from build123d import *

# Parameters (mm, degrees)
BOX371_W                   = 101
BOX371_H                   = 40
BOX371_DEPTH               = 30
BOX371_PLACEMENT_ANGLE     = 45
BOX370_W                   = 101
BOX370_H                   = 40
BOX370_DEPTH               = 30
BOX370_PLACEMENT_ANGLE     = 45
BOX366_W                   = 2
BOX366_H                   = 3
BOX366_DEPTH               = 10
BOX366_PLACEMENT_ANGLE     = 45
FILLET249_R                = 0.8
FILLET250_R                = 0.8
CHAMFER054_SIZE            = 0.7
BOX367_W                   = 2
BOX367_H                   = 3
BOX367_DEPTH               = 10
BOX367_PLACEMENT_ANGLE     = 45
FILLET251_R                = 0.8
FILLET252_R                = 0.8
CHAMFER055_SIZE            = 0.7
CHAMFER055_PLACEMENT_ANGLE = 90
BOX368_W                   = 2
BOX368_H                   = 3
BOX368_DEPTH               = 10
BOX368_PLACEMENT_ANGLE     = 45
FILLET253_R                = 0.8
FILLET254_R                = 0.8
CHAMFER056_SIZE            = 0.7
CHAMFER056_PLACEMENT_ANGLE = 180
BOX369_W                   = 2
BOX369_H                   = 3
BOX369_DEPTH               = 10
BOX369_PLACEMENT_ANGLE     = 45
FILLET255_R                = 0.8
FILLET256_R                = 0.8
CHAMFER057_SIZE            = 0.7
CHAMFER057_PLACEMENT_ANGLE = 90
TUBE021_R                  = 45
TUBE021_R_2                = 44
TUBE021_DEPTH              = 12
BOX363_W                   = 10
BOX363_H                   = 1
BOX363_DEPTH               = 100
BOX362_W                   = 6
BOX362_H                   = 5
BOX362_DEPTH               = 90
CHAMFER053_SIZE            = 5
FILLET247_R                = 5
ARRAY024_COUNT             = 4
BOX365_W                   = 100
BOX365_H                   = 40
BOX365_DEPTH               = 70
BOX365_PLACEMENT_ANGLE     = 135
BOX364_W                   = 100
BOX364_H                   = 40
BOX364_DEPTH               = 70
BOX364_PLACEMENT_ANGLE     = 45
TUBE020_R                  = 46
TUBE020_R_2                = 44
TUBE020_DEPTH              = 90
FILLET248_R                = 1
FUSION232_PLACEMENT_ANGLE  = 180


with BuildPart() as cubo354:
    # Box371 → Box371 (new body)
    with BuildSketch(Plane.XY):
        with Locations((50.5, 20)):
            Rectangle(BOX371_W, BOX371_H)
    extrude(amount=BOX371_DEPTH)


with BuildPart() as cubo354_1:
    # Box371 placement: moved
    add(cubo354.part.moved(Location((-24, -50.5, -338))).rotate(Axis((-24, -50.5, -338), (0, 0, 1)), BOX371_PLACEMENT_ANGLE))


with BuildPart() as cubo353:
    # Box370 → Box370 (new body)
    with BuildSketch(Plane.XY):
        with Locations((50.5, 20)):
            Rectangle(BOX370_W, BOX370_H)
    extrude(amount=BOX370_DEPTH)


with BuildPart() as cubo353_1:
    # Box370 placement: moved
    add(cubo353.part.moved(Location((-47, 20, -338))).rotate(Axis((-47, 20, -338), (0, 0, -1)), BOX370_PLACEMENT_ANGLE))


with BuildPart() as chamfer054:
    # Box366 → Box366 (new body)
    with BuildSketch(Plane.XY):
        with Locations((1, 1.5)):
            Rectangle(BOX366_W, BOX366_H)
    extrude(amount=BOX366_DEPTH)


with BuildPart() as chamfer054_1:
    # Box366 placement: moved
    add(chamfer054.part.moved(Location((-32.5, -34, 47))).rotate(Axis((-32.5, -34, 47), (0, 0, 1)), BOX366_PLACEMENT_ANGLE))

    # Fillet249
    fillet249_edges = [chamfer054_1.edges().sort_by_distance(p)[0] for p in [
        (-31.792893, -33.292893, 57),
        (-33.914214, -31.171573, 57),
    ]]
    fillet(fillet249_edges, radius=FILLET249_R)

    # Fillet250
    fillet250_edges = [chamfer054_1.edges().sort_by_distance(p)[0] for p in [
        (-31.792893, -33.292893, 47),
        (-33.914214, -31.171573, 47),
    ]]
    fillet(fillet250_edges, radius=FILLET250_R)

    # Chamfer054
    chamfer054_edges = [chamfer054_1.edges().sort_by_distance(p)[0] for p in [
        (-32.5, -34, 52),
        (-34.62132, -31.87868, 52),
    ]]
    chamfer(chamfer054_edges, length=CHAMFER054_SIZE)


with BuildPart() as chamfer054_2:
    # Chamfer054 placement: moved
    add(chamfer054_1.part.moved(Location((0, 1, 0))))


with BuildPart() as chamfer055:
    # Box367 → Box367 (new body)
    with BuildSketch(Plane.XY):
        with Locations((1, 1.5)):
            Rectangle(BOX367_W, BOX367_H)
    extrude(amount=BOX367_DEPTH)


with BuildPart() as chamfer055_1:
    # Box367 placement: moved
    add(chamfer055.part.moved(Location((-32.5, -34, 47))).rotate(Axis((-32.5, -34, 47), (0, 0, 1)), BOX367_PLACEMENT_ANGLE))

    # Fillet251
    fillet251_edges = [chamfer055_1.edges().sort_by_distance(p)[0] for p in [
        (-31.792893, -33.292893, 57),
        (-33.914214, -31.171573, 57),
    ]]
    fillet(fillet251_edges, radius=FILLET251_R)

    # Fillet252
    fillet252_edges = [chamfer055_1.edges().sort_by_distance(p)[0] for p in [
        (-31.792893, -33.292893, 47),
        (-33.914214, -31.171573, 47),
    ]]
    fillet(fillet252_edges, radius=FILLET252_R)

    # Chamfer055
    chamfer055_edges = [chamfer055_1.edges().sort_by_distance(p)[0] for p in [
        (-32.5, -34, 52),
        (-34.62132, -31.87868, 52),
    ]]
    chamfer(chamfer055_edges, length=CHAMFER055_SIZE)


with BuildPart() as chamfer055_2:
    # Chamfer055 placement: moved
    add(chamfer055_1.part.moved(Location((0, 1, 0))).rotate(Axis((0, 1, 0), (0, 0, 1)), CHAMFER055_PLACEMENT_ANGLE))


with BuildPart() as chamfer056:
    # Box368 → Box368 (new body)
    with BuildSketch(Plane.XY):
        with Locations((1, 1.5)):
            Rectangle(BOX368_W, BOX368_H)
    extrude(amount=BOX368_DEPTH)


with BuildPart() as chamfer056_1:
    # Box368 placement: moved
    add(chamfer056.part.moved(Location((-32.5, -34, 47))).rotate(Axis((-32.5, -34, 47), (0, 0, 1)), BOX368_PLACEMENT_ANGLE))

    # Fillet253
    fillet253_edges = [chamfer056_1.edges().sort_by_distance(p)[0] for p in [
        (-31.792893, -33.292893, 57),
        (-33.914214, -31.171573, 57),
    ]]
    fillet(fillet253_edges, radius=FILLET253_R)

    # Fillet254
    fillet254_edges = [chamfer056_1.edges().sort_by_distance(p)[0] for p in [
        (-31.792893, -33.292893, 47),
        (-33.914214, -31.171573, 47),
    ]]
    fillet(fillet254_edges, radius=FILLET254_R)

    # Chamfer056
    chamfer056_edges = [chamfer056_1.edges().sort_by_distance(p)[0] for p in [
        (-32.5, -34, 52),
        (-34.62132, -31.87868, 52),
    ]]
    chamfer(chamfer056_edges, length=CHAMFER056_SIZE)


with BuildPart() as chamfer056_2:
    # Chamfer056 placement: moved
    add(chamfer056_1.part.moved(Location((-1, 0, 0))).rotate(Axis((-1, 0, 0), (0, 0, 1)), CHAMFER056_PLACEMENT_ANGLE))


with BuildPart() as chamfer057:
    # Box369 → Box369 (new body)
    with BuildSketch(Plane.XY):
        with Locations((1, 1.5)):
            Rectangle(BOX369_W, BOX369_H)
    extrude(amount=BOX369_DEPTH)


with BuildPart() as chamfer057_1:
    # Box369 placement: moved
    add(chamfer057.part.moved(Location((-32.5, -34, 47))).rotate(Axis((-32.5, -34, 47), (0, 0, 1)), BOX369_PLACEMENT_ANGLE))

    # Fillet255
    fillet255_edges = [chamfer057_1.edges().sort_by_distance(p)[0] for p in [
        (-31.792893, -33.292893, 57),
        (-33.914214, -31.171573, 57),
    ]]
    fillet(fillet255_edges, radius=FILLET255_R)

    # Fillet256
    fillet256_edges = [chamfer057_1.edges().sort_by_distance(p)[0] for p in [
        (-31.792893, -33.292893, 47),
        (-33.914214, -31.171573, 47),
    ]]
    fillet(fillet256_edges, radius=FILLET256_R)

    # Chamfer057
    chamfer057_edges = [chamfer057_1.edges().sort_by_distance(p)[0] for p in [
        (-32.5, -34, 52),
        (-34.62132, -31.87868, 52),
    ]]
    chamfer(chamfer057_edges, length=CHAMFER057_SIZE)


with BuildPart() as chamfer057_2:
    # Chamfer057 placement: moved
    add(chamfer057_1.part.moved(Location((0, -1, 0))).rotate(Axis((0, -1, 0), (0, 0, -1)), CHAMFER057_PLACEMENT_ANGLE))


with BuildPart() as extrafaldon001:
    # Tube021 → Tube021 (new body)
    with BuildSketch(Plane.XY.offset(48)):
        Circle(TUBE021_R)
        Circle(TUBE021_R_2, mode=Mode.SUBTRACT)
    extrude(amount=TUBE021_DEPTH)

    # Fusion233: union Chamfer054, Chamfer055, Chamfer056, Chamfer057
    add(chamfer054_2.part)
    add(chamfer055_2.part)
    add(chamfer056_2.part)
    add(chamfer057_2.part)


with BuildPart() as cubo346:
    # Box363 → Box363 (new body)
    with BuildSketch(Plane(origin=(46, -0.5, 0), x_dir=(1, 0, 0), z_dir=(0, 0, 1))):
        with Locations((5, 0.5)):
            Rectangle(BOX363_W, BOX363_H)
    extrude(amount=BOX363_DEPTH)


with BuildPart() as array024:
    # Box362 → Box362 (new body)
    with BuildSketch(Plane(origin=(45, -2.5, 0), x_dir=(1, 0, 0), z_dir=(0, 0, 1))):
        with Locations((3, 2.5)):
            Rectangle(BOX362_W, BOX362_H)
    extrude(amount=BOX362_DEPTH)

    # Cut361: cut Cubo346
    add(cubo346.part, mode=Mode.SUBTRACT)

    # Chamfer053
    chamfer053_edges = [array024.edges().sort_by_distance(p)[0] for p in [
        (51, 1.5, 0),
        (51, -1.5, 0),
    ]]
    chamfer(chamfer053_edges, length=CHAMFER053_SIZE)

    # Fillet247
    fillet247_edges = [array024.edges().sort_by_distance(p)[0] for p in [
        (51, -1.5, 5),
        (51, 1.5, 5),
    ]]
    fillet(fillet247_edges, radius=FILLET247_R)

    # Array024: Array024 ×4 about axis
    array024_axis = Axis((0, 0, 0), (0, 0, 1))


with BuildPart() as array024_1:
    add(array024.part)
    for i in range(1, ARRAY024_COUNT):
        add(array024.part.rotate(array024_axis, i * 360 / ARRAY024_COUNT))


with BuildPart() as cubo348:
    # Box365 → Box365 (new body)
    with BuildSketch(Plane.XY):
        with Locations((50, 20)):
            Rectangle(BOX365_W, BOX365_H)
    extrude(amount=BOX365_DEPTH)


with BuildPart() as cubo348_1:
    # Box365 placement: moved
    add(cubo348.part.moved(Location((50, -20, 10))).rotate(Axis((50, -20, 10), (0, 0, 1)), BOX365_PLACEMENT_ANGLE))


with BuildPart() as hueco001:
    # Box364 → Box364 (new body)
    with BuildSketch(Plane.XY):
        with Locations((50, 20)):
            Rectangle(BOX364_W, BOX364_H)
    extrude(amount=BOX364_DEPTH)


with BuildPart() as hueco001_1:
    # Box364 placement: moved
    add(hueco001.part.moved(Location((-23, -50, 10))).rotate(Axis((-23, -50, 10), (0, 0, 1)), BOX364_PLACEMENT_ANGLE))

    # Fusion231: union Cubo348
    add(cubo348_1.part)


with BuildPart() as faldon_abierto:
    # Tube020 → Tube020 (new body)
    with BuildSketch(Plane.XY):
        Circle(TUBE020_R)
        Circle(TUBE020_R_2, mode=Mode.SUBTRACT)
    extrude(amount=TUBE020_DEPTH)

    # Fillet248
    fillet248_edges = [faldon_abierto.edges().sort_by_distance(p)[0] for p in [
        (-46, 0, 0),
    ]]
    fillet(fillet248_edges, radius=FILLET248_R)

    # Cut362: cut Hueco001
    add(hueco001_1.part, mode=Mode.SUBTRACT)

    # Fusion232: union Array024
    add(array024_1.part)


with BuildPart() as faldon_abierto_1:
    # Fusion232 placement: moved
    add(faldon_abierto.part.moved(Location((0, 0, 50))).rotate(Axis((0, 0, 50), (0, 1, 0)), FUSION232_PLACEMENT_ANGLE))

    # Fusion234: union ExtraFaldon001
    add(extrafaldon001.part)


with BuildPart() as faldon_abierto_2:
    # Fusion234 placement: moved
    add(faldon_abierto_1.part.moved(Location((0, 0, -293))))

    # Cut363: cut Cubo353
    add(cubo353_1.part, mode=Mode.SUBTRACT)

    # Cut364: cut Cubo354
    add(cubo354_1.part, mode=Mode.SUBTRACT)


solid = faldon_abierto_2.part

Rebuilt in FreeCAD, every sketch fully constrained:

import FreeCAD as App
import Part
import Sketcher
from FreeCAD import Vector


def edges_at(feature, points):
    """Names of the edges that pass closest to the given points."""
    edges = feature.Shape.Edges
    near = lambda p: min(range(len(edges)), key=lambda i: edges[i].distToShape(Part.Vertex(*p))[0])
    return sorted({f"Edge{near(p) + 1}" for p in points})

doc = App.newDocument("Part")
body = doc.addObject("PartDesign::Body", "Body")

# Sketch on XY plane
sketch1 = body.newObject("Sketcher::SketchObject", "Sketch")
sketch1.AttachmentSupport = (doc.getObject("XY_Plane"), [""])
sketch1.MapMode = "FlatFace"
sketch1.addGeometry([
    Part.LineSegment(Vector(0, 40, 0), Vector(0, 0, 0)),
    Part.LineSegment(Vector(0, 0, 0), Vector(101, 0, 0)),
    Part.LineSegment(Vector(101, 0, 0), Vector(101, 40, 0)),
    Part.LineSegment(Vector(101, 40, 0), Vector(0, 40, 0)),
], False)
sketch1.addConstraint([
    Sketcher.Constraint("Coincident", 0, 2, 1, 1),
    Sketcher.Constraint("Coincident", 1, 2, 2, 1),
    Sketcher.Constraint("Coincident", 2, 2, 3, 1),
    Sketcher.Constraint("Coincident", 3, 2, 0, 1),
    Sketcher.Constraint("Vertical", 0),
    Sketcher.Constraint("Horizontal", 1),
    Sketcher.Constraint("Vertical", 2),
    Sketcher.Constraint("Horizontal", 3),
    Sketcher.Constraint("Coincident", 0, 2, -1, 1),
    Sketcher.Constraint("DistanceX", 1, 1, 1, 2, 101.0),
    Sketcher.Constraint("DistanceY", 0, 2, 0, 1, 40.0),
])
pad1 = body.newObject("PartDesign::Pad", "Pad")
pad1.Profile = sketch1
pad1.Length = 30
body2 = doc.addObject("PartDesign::Body", "Body001")
doc.recompute()

body.Placement = App.Placement(Vector(-24, -50.5, -338), App.Rotation(Vector(0, 0, 1), 45))
boolean = body2.newObject("PartDesign::Boolean", "Boolean")
boolean.Type = "Fuse"
boolean.addObjects([body])
body3 = doc.addObject("PartDesign::Body", "Body002")

# Sketch on XY plane
sketch2 = body3.newObject("Sketcher::SketchObject", "Sketch001")
sketch2.AttachmentSupport = (doc.getObject("XY_Plane002"), [""])
sketch2.MapMode = "FlatFace"
sketch2.addGeometry([
    Part.LineSegment(Vector(0, 40, 0), Vector(0, 0, 0)),
    Part.LineSegment(Vector(0, 0, 0), Vector(101, 0, 0)),
    Part.LineSegment(Vector(101, 0, 0), Vector(101, 40, 0)),
    Part.LineSegment(Vector(101, 40, 0), Vector(0, 40, 0)),
], False)
sketch2.addConstraint([
    Sketcher.Constraint("Coincident", 0, 2, 1, 1),
    Sketcher.Constraint("Coincident", 1, 2, 2, 1),
    Sketcher.Constraint("Coincident", 2, 2, 3, 1),
    Sketcher.Constraint("Coincident", 3, 2, 0, 1),
    Sketcher.Constraint("Vertical", 0),
    Sketcher.Constraint("Horizontal", 1),
    Sketcher.Constraint("Vertical", 2),
    Sketcher.Constraint("Horizontal", 3),
    Sketcher.Constraint("Coincident", 0, 2, -1, 1),
    Sketcher.Constraint("DistanceX", 1, 1, 1, 2, 101.0),
    Sketcher.Constraint("DistanceY", 0, 2, 0, 1, 40.0),
])
pad2 = body3.newObject("PartDesign::Pad", "Pad001")
pad2.Profile = sketch2
pad2.Length = 30
body4 = doc.addObject("PartDesign::Body", "Body003")
doc.recompute()

body3.Placement = App.Placement(Vector(-47, 20, -338), App.Rotation(Vector(0, 0, -1), 45))
boolean2 = body4.newObject("PartDesign::Boolean", "Boolean001")
boolean2.Type = "Fuse"
boolean2.addObjects([body3])
body5 = doc.addObject("PartDesign::Body", "Body004")

# Sketch on XY plane
sketch3 = body5.newObject("Sketcher::SketchObject", "Sketch002")
sketch3.AttachmentSupport = (doc.getObject("XY_Plane004"), [""])
sketch3.MapMode = "FlatFace"
sketch3.addGeometry([
    Part.LineSegment(Vector(0, 3, 0), Vector(0, 0, 0)),
    Part.LineSegment(Vector(0, 0, 0), Vector(2, 0, 0)),
    Part.LineSegment(Vector(2, 0, 0), Vector(2, 3, 0)),
    Part.LineSegment(Vector(2, 3, 0), Vector(0, 3, 0)),
], False)
sketch3.addConstraint([
    Sketcher.Constraint("Coincident", 0, 2, 1, 1),
    Sketcher.Constraint("Coincident", 1, 2, 2, 1),
    Sketcher.Constraint("Coincident", 2, 2, 3, 1),
    Sketcher.Constraint("Coincident", 3, 2, 0, 1),
    Sketcher.Constraint("Vertical", 0),
    Sketcher.Constraint("Horizontal", 1),
    Sketcher.Constraint("Vertical", 2),
    Sketcher.Constraint("Horizontal", 3),
    Sketcher.Constraint("Coincident", 0, 2, -1, 1),
    Sketcher.Constraint("DistanceX", 1, 1, 1, 2, 2.0),
    Sketcher.Constraint("DistanceY", 0, 2, 0, 1, 3.0),
])
pad3 = body5.newObject("PartDesign::Pad", "Pad002")
pad3.Profile = sketch3
pad3.Length = 10
body6 = doc.addObject("PartDesign::Body", "Body005")
doc.recompute()

body5.Placement = App.Placement(Vector(-32.5, -34, 47), App.Rotation(Vector(0, 0, 1), 45))
boolean3 = body6.newObject("PartDesign::Boolean", "Boolean002")
boolean3.Type = "Fuse"
boolean3.addObjects([body5])
doc.recompute()

fillet = body6.newObject("PartDesign::Fillet", "Fillet")
fillet.Base = (boolean3, edges_at(boolean3, [(-31.793, -33.293, 57), (-33.914, -31.172, 57)]))
fillet.Radius = 0.8
doc.recompute()

fillet2 = body6.newObject("PartDesign::Fillet", "Fillet001")
fillet2.Base = (fillet, edges_at(fillet, [(-31.793, -33.293, 47), (-33.914, -31.172, 47)]))
fillet2.Radius = 0.8
doc.recompute()

chamfer = body6.newObject("PartDesign::Chamfer", "Chamfer")
chamfer.Base = (fillet2, edges_at(fillet2, [(-32.5, -34, 52), (-34.621, -31.879, 52)]))
chamfer.Size = 0.7
body7 = doc.addObject("PartDesign::Body", "Body006")
doc.recompute()

body6.Placement = App.Placement(Vector(0, 1, 0), App.Rotation(Vector(0, 0, 1), 0))
boolean4 = body7.newObject("PartDesign::Boolean", "Boolean003")
boolean4.Type = "Fuse"
boolean4.addObjects([body6])
body8 = doc.addObject("PartDesign::Body", "Body007")

# Sketch on XY plane
sketch4 = body8.newObject("Sketcher::SketchObject", "Sketch003")
sketch4.AttachmentSupport = (doc.getObject("XY_Plane007"), [""])
sketch4.MapMode = "FlatFace"
sketch4.addGeometry([
    Part.LineSegment(Vector(0, 3, 0), Vector(0, 0, 0)),
    Part.LineSegment(Vector(0, 0, 0), Vector(2, 0, 0)),
    Part.LineSegment(Vector(2, 0, 0), Vector(2, 3, 0)),
    Part.LineSegment(Vector(2, 3, 0), Vector(0, 3, 0)),
], False)
sketch4.addConstraint([
    Sketcher.Constraint("Coincident", 0, 2, 1, 1),
    Sketcher.Constraint("Coincident", 1, 2, 2, 1),
    Sketcher.Constraint("Coincident", 2, 2, 3, 1),
    Sketcher.Constraint("Coincident", 3, 2, 0, 1),
    Sketcher.Constraint("Vertical", 0),
    Sketcher.Constraint("Horizontal", 1),
    Sketcher.Constraint("Vertical", 2),
    Sketcher.Constraint("Horizontal", 3),
    Sketcher.Constraint("Coincident", 0, 2, -1, 1),
    Sketcher.Constraint("DistanceX", 1, 1, 1, 2, 2.0),
    Sketcher.Constraint("DistanceY", 0, 2, 0, 1, 3.0),
])
pad4 = body8.newObject("PartDesign::Pad", "Pad003")
pad4.Profile = sketch4
pad4.Length = 10
body9 = doc.addObject("PartDesign::Body", "Body008")
doc.recompute()

body8.Placement = App.Placement(Vector(-32.5, -34, 47), App.Rotation(Vector(0, 0, 1), 45))
boolean5 = body9.newObject("PartDesign::Boolean", "Boolean004")
boolean5.Type = "Fuse"
boolean5.addObjects([body8])
doc.recompute()

fillet3 = body9.newObject("PartDesign::Fillet", "Fillet002")
fillet3.Base = (boolean5, edges_at(boolean5, [(-31.793, -33.293, 57), (-33.914, -31.172, 57)]))
fillet3.Radius = 0.8
doc.recompute()

fillet4 = body9.newObject("PartDesign::Fillet", "Fillet003")
fillet4.Base = (fillet3, edges_at(fillet3, [(-31.793, -33.293, 47), (-33.914, -31.172, 47)]))
fillet4.Radius = 0.8
doc.recompute()

chamfer2 = body9.newObject("PartDesign::Chamfer", "Chamfer001")
chamfer2.Base = (fillet4, edges_at(fillet4, [(-32.5, -34, 52), (-34.621, -31.879, 52)]))
chamfer2.Size = 0.7
body10 = doc.addObject("PartDesign::Body", "Body009")
doc.recompute()

body9.Placement = App.Placement(Vector(0, 1, 0), App.Rotation(Vector(0, 0, 1), 90))
boolean6 = body10.newObject("PartDesign::Boolean", "Boolean005")
boolean6.Type = "Fuse"
boolean6.addObjects([body9])
body11 = doc.addObject("PartDesign::Body", "Body010")

# Sketch on XY plane
sketch5 = body11.newObject("Sketcher::SketchObject", "Sketch004")
sketch5.AttachmentSupport = (doc.getObject("XY_Plane010"), [""])
sketch5.MapMode = "FlatFace"
sketch5.addGeometry([
    Part.LineSegment(Vector(0, 3, 0), Vector(0, 0, 0)),
    Part.LineSegment(Vector(0, 0, 0), Vector(2, 0, 0)),
    Part.LineSegment(Vector(2, 0, 0), Vector(2, 3, 0)),
    Part.LineSegment(Vector(2, 3, 0), Vector(0, 3, 0)),
], False)
sketch5.addConstraint([
    Sketcher.Constraint("Coincident", 0, 2, 1, 1),
    Sketcher.Constraint("Coincident", 1, 2, 2, 1),
    Sketcher.Constraint("Coincident", 2, 2, 3, 1),
    Sketcher.Constraint("Coincident", 3, 2, 0, 1),
    Sketcher.Constraint("Vertical", 0),
    Sketcher.Constraint("Horizontal", 1),
    Sketcher.Constraint("Vertical", 2),
    Sketcher.Constraint("Horizontal", 3),
    Sketcher.Constraint("Coincident", 0, 2, -1, 1),
    Sketcher.Constraint("DistanceX", 1, 1, 1, 2, 2.0),
    Sketcher.Constraint("DistanceY", 0, 2, 0, 1, 3.0),
])
pad5 = body11.newObject("PartDesign::Pad", "Pad004")
pad5.Profile = sketch5
pad5.Length = 10
body12 = doc.addObject("PartDesign::Body", "Body011")
doc.recompute()

body11.Placement = App.Placement(Vector(-32.5, -34, 47), App.Rotation(Vector(0, 0, 1), 45))
boolean7 = body12.newObject("PartDesign::Boolean", "Boolean006")
boolean7.Type = "Fuse"
boolean7.addObjects([body11])
doc.recompute()

fillet5 = body12.newObject("PartDesign::Fillet", "Fillet004")
fillet5.Base = (boolean7, edges_at(boolean7, [(-31.793, -33.293, 57), (-33.914, -31.172, 57)]))
fillet5.Radius = 0.8
doc.recompute()

fillet6 = body12.newObject("PartDesign::Fillet", "Fillet005")
fillet6.Base = (fillet5, edges_at(fillet5, [(-31.793, -33.293, 47), (-33.914, -31.172, 47)]))
fillet6.Radius = 0.8
doc.recompute()

chamfer3 = body12.newObject("PartDesign::Chamfer", "Chamfer002")
chamfer3.Base = (fillet6, edges_at(fillet6, [(-32.5, -34, 52), (-34.621, -31.879, 52)]))
chamfer3.Size = 0.7
body13 = doc.addObject("PartDesign::Body", "Body012")
doc.recompute()

body12.Placement = App.Placement(Vector(-1, 0, 0), App.Rotation(Vector(0, 0, 1), 180))
boolean8 = body13.newObject("PartDesign::Boolean", "Boolean007")
boolean8.Type = "Fuse"
boolean8.addObjects([body12])
body14 = doc.addObject("PartDesign::Body", "Body013")

# Sketch on XY plane
sketch6 = body14.newObject("Sketcher::SketchObject", "Sketch005")
sketch6.AttachmentSupport = (doc.getObject("XY_Plane013"), [""])
sketch6.MapMode = "FlatFace"
sketch6.addGeometry([
    Part.LineSegment(Vector(0, 3, 0), Vector(0, 0, 0)),
    Part.LineSegment(Vector(0, 0, 0), Vector(2, 0, 0)),
    Part.LineSegment(Vector(2, 0, 0), Vector(2, 3, 0)),
    Part.LineSegment(Vector(2, 3, 0), Vector(0, 3, 0)),
], False)
sketch6.addConstraint([
    Sketcher.Constraint("Coincident", 0, 2, 1, 1),
    Sketcher.Constraint("Coincident", 1, 2, 2, 1),
    Sketcher.Constraint("Coincident", 2, 2, 3, 1),
    Sketcher.Constraint("Coincident", 3, 2, 0, 1),
    Sketcher.Constraint("Vertical", 0),
    Sketcher.Constraint("Horizontal", 1),
    Sketcher.Constraint("Vertical", 2),
    Sketcher.Constraint("Horizontal", 3),
    Sketcher.Constraint("Coincident", 0, 2, -1, 1),
    Sketcher.Constraint("DistanceX", 1, 1, 1, 2, 2.0),
    Sketcher.Constraint("DistanceY", 0, 2, 0, 1, 3.0),
])
pad6 = body14.newObject("PartDesign::Pad", "Pad005")
pad6.Profile = sketch6
pad6.Length = 10
body15 = doc.addObject("PartDesign::Body", "Body014")
doc.recompute()

body14.Placement = App.Placement(Vector(-32.5, -34, 47), App.Rotation(Vector(0, 0, 1), 45))
boolean9 = body15.newObject("PartDesign::Boolean", "Boolean008")
boolean9.Type = "Fuse"
boolean9.addObjects([body14])
doc.recompute()

fillet7 = body15.newObject("PartDesign::Fillet", "Fillet006")
fillet7.Base = (boolean9, edges_at(boolean9, [(-31.793, -33.293, 57), (-33.914, -31.172, 57)]))
fillet7.Radius = 0.8
doc.recompute()

fillet8 = body15.newObject("PartDesign::Fillet", "Fillet007")
fillet8.Base = (fillet7, edges_at(fillet7, [(-31.793, -33.293, 47), (-33.914, -31.172, 47)]))
fillet8.Radius = 0.8
doc.recompute()

chamfer4 = body15.newObject("PartDesign::Chamfer", "Chamfer003")
chamfer4.Base = (fillet8, edges_at(fillet8, [(-32.5, -34, 52), (-34.621, -31.879, 52)]))
chamfer4.Size = 0.7
body16 = doc.addObject("PartDesign::Body", "Body015")
doc.recompute()

body15.Placement = App.Placement(Vector(0, -1, 0), App.Rotation(Vector(0, 0, -1), 90))
boolean10 = body16.newObject("PartDesign::Boolean", "Boolean009")
boolean10.Type = "Fuse"
boolean10.addObjects([body15])
body17 = doc.addObject("PartDesign::Body", "Body016")

# Sketch on XY plane
sketch7 = body17.newObject("Sketcher::SketchObject", "Sketch006")
sketch7.AttachmentSupport = (doc.getObject("XY_Plane016"), [""])
sketch7.MapMode = "FlatFace"
sketch7.AttachmentOffset = App.Placement(Vector(0, 0, 48), App.Rotation())
sketch7.addGeometry([
    Part.Circle(Vector(0, 0, 0), Vector(0, 0, 1), 45),
    Part.Circle(Vector(0, 0, 0), Vector(0, 0, 1), 44),
], False)
sketch7.addConstraint([
    Sketcher.Constraint("Coincident", 0, 3, -1, 1),
    Sketcher.Constraint("Coincident", 1, 3, -1, 1),
    Sketcher.Constraint("Diameter", 0, 90.0),
    Sketcher.Constraint("Diameter", 1, 88.0),
])
pad7 = body17.newObject("PartDesign::Pad", "Pad006")
pad7.Profile = sketch7
pad7.Length = 12
doc.recompute()

boolean11 = body17.newObject("PartDesign::Boolean", "Boolean010")
boolean11.Type = "Fuse"
boolean11.addObjects([body7])
doc.recompute()

boolean12 = body17.newObject("PartDesign::Boolean", "Boolean011")
boolean12.Type = "Fuse"
boolean12.addObjects([body10])
doc.recompute()

boolean13 = body17.newObject("PartDesign::Boolean", "Boolean012")
boolean13.Type = "Fuse"
boolean13.addObjects([body13])
doc.recompute()

boolean14 = body17.newObject("PartDesign::Boolean", "Boolean013")
boolean14.Type = "Fuse"
boolean14.addObjects([body16])
body18 = doc.addObject("PartDesign::Body", "Body017")

# Sketch on XY plane
sketch8 = body18.newObject("Sketcher::SketchObject", "Sketch007")
sketch8.AttachmentSupport = (doc.getObject("XY_Plane017"), [""])
sketch8.MapMode = "FlatFace"
sketch8.addGeometry([
    Part.LineSegment(Vector(46, 0.5, 0), Vector(46, -0.5, 0)),
    Part.LineSegment(Vector(46, -0.5, 0), Vector(56, -0.5, 0)),
    Part.LineSegment(Vector(56, -0.5, 0), Vector(56, 0.5, 0)),
    Part.LineSegment(Vector(56, 0.5, 0), Vector(46, 0.5, 0)),
], False)
sketch8.addConstraint([
    Sketcher.Constraint("Coincident", 0, 2, 1, 1),
    Sketcher.Constraint("Coincident", 1, 2, 2, 1),
    Sketcher.Constraint("Coincident", 2, 2, 3, 1),
    Sketcher.Constraint("Coincident", 3, 2, 0, 1),
    Sketcher.Constraint("Vertical", 0),
    Sketcher.Constraint("Horizontal", 1),
    Sketcher.Constraint("Vertical", 2),
    Sketcher.Constraint("Horizontal", 3),
    Sketcher.Constraint("DistanceX", 1, 1, 1, 2, 10.0),
    Sketcher.Constraint("DistanceY", 0, 2, 0, 1, 1.0),
    Sketcher.Constraint("DistanceX", -1, 1, 0, 2, 46.0),
    Sketcher.Constraint("DistanceY", 0, 2, -1, 1, 0.5),
])
pad8 = body18.newObject("PartDesign::Pad", "Pad007")
pad8.Profile = sketch8
pad8.Length = 100
body19 = doc.addObject("PartDesign::Body", "Body018")

# Sketch on XY plane
sketch9 = body19.newObject("Sketcher::SketchObject", "Sketch008")
sketch9.AttachmentSupport = (doc.getObject("XY_Plane018"), [""])
sketch9.MapMode = "FlatFace"
sketch9.addGeometry([
    Part.LineSegment(Vector(45, 2, 0), Vector(45, -2, 0)),
    Part.LineSegment(Vector(45, -2, 0), Vector(51, -2, 0)),
    Part.LineSegment(Vector(51, -2, 0), Vector(51, 2, 0)),
    Part.LineSegment(Vector(51, 2, 0), Vector(45, 2, 0)),
], False)
sketch9.addConstraint([
    Sketcher.Constraint("Coincident", 0, 2, 1, 1),
    Sketcher.Constraint("Coincident", 1, 2, 2, 1),
    Sketcher.Constraint("Coincident", 2, 2, 3, 1),
    Sketcher.Constraint("Coincident", 3, 2, 0, 1),
    Sketcher.Constraint("Vertical", 0),
    Sketcher.Constraint("Horizontal", 1),
    Sketcher.Constraint("Vertical", 2),
    Sketcher.Constraint("Horizontal", 3),
    Sketcher.Constraint("DistanceX", 1, 1, 1, 2, 6.0),
    Sketcher.Constraint("DistanceY", 0, 2, 0, 1, 5.0),
    Sketcher.Constraint("DistanceX", -1, 1, 0, 2, 45.0),
    Sketcher.Constraint("DistanceY", 0, 2, -1, 1, 2.5),
])
pad9 = body19.newObject("PartDesign::Pad", "Pad008")
pad9.Profile = sketch9
pad9.Length = 90
doc.recompute()

boolean15 = body19.newObject("PartDesign::Boolean", "Boolean014")
boolean15.Type = "Cut"
boolean15.addObjects([body18])
doc.recompute()

chamfer5 = body19.newObject("PartDesign::Chamfer", "Chamfer004")
chamfer5.Base = (boolean15, edges_at(boolean15, [(51, 1.5, 0), (51, -1.5, 0)]))
chamfer5.Size = 5
doc.recompute()

fillet9 = body19.newObject("PartDesign::Fillet", "Fillet008")
fillet9.Base = (chamfer5, edges_at(chamfer5, [(51, -1.5, 5), (51, 1.5, 5)]))
fillet9.Radius = 5
body20 = doc.addObject("PartDesign::Body", "Body019")
body20.AllowCompound = True
doc.recompute()

body20.BaseFeature = body19
doc.recompute()

body21 = doc.addObject("PartDesign::Body", "Body020")
body21.BaseFeature = body19
body21.Placement = App.Placement(Vector(0, 0, 0), App.Rotation(Vector(0, 0, 1), 90))
boolean16 = body20.newObject("PartDesign::Boolean", "Boolean015")
boolean16.Type = "Fuse"
boolean16.addObjects([body21])
doc.recompute()

body22 = doc.addObject("PartDesign::Body", "Body021")
body22.BaseFeature = body19
body22.Placement = App.Placement(Vector(0, 0, 0), App.Rotation(Vector(0, 0, 1), 180))
boolean17 = body20.newObject("PartDesign::Boolean", "Boolean016")
boolean17.Type = "Fuse"
boolean17.addObjects([body22])
doc.recompute()

body19.Placement = App.Placement(Vector(0, 0, 0), App.Rotation(Vector(0, 0, 1), 270))
boolean18 = body20.newObject("PartDesign::Boolean", "Boolean017")
boolean18.Type = "Fuse"
boolean18.addObjects([body19])
body23 = doc.addObject("PartDesign::Body", "Body022")

# Sketch on XY plane
sketch10 = body23.newObject("Sketcher::SketchObject", "Sketch009")
sketch10.AttachmentSupport = (doc.getObject("XY_Plane022"), [""])
sketch10.MapMode = "FlatFace"
sketch10.addGeometry([
    Part.LineSegment(Vector(0, 40, 0), Vector(0, 0, 0)),
    Part.LineSegment(Vector(0, 0, 0), Vector(100, 0, 0)),
    Part.LineSegment(Vector(100, 0, 0), Vector(100, 40, 0)),
    Part.LineSegment(Vector(100, 40, 0), Vector(0, 40, 0)),
], False)
sketch10.addConstraint([
    Sketcher.Constraint("Coincident", 0, 2, 1, 1),
    Sketcher.Constraint("Coincident", 1, 2, 2, 1),
    Sketcher.Constraint("Coincident", 2, 2, 3, 1),
    Sketcher.Constraint("Coincident", 3, 2, 0, 1),
    Sketcher.Constraint("Vertical", 0),
    Sketcher.Constraint("Horizontal", 1),
    Sketcher.Constraint("Vertical", 2),
    Sketcher.Constraint("Horizontal", 3),
    Sketcher.Constraint("Coincident", 0, 2, -1, 1),
    Sketcher.Constraint("DistanceX", 1, 1, 1, 2, 100.0),
    Sketcher.Constraint("DistanceY", 0, 2, 0, 1, 40.0),
])
pad10 = body23.newObject("PartDesign::Pad", "Pad009")
pad10.Profile = sketch10
pad10.Length = 70
body24 = doc.addObject("PartDesign::Body", "Body023")
doc.recompute()

body23.Placement = App.Placement(Vector(50, -20, 10), App.Rotation(Vector(0, 0, 1), 135))
boolean19 = body24.newObject("PartDesign::Boolean", "Boolean018")
boolean19.Type = "Fuse"
boolean19.addObjects([body23])
body25 = doc.addObject("PartDesign::Body", "Body024")

# Sketch on XY plane
sketch11 = body25.newObject("Sketcher::SketchObject", "Sketch010")
sketch11.AttachmentSupport = (doc.getObject("XY_Plane024"), [""])
sketch11.MapMode = "FlatFace"
sketch11.addGeometry([
    Part.LineSegment(Vector(0, 40, 0), Vector(0, 0, 0)),
    Part.LineSegment(Vector(0, 0, 0), Vector(100, 0, 0)),
    Part.LineSegment(Vector(100, 0, 0), Vector(100, 40, 0)),
    Part.LineSegment(Vector(100, 40, 0), Vector(0, 40, 0)),
], False)
sketch11.addConstraint([
    Sketcher.Constraint("Coincident", 0, 2, 1, 1),
    Sketcher.Constraint("Coincident", 1, 2, 2, 1),
    Sketcher.Constraint("Coincident", 2, 2, 3, 1),
    Sketcher.Constraint("Coincident", 3, 2, 0, 1),
    Sketcher.Constraint("Vertical", 0),
    Sketcher.Constraint("Horizontal", 1),
    Sketcher.Constraint("Vertical", 2),
    Sketcher.Constraint("Horizontal", 3),
    Sketcher.Constraint("Coincident", 0, 2, -1, 1),
    Sketcher.Constraint("DistanceX", 1, 1, 1, 2, 100.0),
    Sketcher.Constraint("DistanceY", 0, 2, 0, 1, 40.0),
])
pad11 = body25.newObject("PartDesign::Pad", "Pad010")
pad11.Profile = sketch11
pad11.Length = 70
body26 = doc.addObject("PartDesign::Body", "Body025")
doc.recompute()

body25.Placement = App.Placement(Vector(-23, -50, 10), App.Rotation(Vector(0, 0, 1), 45))
boolean20 = body26.newObject("PartDesign::Boolean", "Boolean019")
boolean20.Type = "Fuse"
boolean20.addObjects([body25])
doc.recompute()

boolean21 = body26.newObject("PartDesign::Boolean", "Boolean020")
boolean21.Type = "Fuse"
boolean21.addObjects([body24])
body27 = doc.addObject("PartDesign::Body", "Body026")

# Sketch on XY plane
sketch12 = body27.newObject("Sketcher::SketchObject", "Sketch011")
sketch12.AttachmentSupport = (doc.getObject("XY_Plane026"), [""])
sketch12.MapMode = "FlatFace"
sketch12.addGeometry([
    Part.Circle(Vector(0, 0, 0), Vector(0, 0, 1), 46),
    Part.Circle(Vector(0, 0, 0), Vector(0, 0, 1), 44),
], False)
sketch12.addConstraint([
    Sketcher.Constraint("Coincident", 0, 3, -1, 1),
    Sketcher.Constraint("Coincident", 1, 3, -1, 1),
    Sketcher.Constraint("Diameter", 0, 92.0),
    Sketcher.Constraint("Diameter", 1, 88.0),
])
pad12 = body27.newObject("PartDesign::Pad", "Pad011")
pad12.Profile = sketch12
pad12.Length = 90
doc.recompute()

fillet10 = body27.newObject("PartDesign::Fillet", "Fillet009")
fillet10.Base = (pad12, edges_at(pad12, [(-46, 0, 0)]))
fillet10.Radius = 1
doc.recompute()

boolean22 = body27.newObject("PartDesign::Boolean", "Boolean021")
boolean22.Type = "Cut"
boolean22.addObjects([body26])
doc.recompute()

boolean23 = body27.newObject("PartDesign::Boolean", "Boolean022")
boolean23.Type = "Fuse"
boolean23.addObjects([body20])
body28 = doc.addObject("PartDesign::Body", "Body027")
doc.recompute()

body27.Placement = App.Placement(Vector(0, 0, 50), App.Rotation(Vector(0, 1, 0), 180))
boolean24 = body28.newObject("PartDesign::Boolean", "Boolean023")
boolean24.Type = "Fuse"
boolean24.addObjects([body27])
doc.recompute()

boolean25 = body28.newObject("PartDesign::Boolean", "Boolean024")
boolean25.Type = "Fuse"
boolean25.addObjects([body17])
body29 = doc.addObject("PartDesign::Body", "Body028")
doc.recompute()

body28.Placement = App.Placement(Vector(0, 0, -293), App.Rotation(Vector(0, 0, 1), 0))
boolean26 = body29.newObject("PartDesign::Boolean", "Boolean025")
boolean26.Type = "Fuse"
boolean26.addObjects([body28])
doc.recompute()

boolean27 = body29.newObject("PartDesign::Boolean", "Boolean026")
boolean27.Type = "Cut"
boolean27.addObjects([body4])
doc.recompute()

boolean28 = body29.newObject("PartDesign::Boolean", "Boolean027")
boolean28.Type = "Cut"
boolean28.addObjects([body2])

doc.recompute()
